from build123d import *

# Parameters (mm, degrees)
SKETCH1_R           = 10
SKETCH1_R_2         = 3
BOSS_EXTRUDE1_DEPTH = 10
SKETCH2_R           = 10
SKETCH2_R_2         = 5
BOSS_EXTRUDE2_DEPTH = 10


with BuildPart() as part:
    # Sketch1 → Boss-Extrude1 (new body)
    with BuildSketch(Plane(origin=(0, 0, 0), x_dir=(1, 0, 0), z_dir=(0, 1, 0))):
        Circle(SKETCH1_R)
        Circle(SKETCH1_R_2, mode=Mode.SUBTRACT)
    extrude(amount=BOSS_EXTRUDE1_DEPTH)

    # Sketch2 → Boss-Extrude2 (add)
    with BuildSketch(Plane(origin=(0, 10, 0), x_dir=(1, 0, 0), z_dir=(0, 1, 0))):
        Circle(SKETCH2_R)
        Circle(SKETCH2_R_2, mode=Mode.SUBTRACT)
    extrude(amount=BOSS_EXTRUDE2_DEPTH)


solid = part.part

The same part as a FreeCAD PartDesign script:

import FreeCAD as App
import Part
import Sketcher

doc = App.newDocument("Part")
body = doc.addObject("PartDesign::Body", "Body")

# Sketch on XZ plane
sketch1 = body.newObject("Sketcher::SketchObject", "Sketch")
sketch1.AttachmentSupport = (doc.getObject("XZ_Plane"), [""])
sketch1.MapMode = "FlatFace"
sketch1.addGeometry([
    Part.Circle(App.Vector(0, 0, 0), App.Vector(0, 0, 1), 10),
    Part.Circle(App.Vector(0, 0, 0), App.Vector(0, 0, 1), 3),
], False)
sketch1.addConstraint([
    Sketcher.Constraint("Coincident", 0, 3, -1, 1),
    Sketcher.Constraint("Coincident", 1, 3, -1, 1),
    Sketcher.Constraint("Diameter", 0, 20.0),
    Sketcher.Constraint("Diameter", 1, 6.0),
])
pad1 = body.newObject("PartDesign::Pad", "Pad")
pad1.Profile = sketch1
pad1.Length = 10
pad1.Reversed = True

# Sketch on XZ plane
sketch2 = body.newObject("Sketcher::SketchObject", "Sketch001")
sketch2.AttachmentSupport = (doc.getObject("XZ_Plane"), [""])
sketch2.MapMode = "FlatFace"
sketch2.AttachmentOffset = App.Placement(App.Vector(0, 0, -10), App.Rotation())
sketch2.addGeometry([
    Part.Circle(App.Vector(0, 0, 0), App.Vector(0, 0, 1), 10),
    Part.Circle(App.Vector(0, 0, 0), App.Vector(0, 0, 1), 5),
], False)
sketch2.addConstraint([
    Sketcher.Constraint("Coincident", 0, 3, -1, 1),
    Sketcher.Constraint("Coincident", 1, 3, -1, 1),
    Sketcher.Constraint("Diameter", 0, 20.0),
    Sketcher.Constraint("Diameter", 1, 10.0),
])
pad2 = body.newObject("PartDesign::Pad", "Pad001")
pad2.Profile = sketch2
pad2.Length = 10
pad2.Reversed = True

doc.recompute()
